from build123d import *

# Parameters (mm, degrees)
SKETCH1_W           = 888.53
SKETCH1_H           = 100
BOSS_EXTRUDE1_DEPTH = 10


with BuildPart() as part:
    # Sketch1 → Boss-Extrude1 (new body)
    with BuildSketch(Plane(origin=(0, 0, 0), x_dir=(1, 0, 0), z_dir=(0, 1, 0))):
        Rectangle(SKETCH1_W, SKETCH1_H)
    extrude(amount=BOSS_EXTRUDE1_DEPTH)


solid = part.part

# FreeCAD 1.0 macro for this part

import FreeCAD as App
import Part
import Sketcher

V = App.Vector

doc = App.newDocument("Part")
body = doc.addObject("PartDesign::Body", "Body")

sketch1 = body.newObject("Sketcher::SketchObject", "Sketch")
sketch1.AttachmentSupport = (doc.getObject("XZ_Plane"), [""])
sketch1.MapMode = "FlatFace"
sketch1.addGeometry(Part.LineSegment(V(-444, -50, 0), V(-444, 50, 0)), False)
sketch1.addGeometry(Part.LineSegment(V(-444, 50, 0), V(444, 50, 0)), False)
sketch1.addGeometry(Part.LineSegment(V(444, 50, 0), V(444, -50, 0)), False)
sketch1.addGeometry(Part.LineSegment(V(444, -50, 0), V(-444, -50, 0)), False)
sketch1.addConstraint(Sketcher.Constraint("Coincident", 0, 2, 1, 1))
sketch1.addConstraint(Sketcher.Constraint("Coincident", 1, 2, 2, 1))
sketch1.addConstraint(Sketcher.Constraint("Coincident", 2, 2, 3, 1))
sketch1.addConstraint(Sketcher.Constraint("Coincident", 3, 2, 0, 1))
sketch1.addConstraint(Sketcher.Constraint("Vertical", 0))
sketch1.addConstraint(Sketcher.Constraint("Horizontal", 1))
sketch1.addConstraint(Sketcher.Constraint("Vertical", 2))
sketch1.addConstraint(Sketcher.Constraint("Horizontal", 3))
sketch1.addConstraint(Sketcher.Constraint("Symmetric", 0, 2, 2, 2, -1, 1))
sketch1.addConstraint(Sketcher.Constraint("DistanceY", 0, 1, 0, 2, 100.0))
sketch1.addConstraint(Sketcher.Constraint("DistanceX", 1, 1, 1, 2, 888.53))
pad1 = body.newObject("PartDesign::Pad", "Pad")
pad1.Profile = sketch1
pad1.Length = 10
pad1.Reversed = True

doc.recompute()
